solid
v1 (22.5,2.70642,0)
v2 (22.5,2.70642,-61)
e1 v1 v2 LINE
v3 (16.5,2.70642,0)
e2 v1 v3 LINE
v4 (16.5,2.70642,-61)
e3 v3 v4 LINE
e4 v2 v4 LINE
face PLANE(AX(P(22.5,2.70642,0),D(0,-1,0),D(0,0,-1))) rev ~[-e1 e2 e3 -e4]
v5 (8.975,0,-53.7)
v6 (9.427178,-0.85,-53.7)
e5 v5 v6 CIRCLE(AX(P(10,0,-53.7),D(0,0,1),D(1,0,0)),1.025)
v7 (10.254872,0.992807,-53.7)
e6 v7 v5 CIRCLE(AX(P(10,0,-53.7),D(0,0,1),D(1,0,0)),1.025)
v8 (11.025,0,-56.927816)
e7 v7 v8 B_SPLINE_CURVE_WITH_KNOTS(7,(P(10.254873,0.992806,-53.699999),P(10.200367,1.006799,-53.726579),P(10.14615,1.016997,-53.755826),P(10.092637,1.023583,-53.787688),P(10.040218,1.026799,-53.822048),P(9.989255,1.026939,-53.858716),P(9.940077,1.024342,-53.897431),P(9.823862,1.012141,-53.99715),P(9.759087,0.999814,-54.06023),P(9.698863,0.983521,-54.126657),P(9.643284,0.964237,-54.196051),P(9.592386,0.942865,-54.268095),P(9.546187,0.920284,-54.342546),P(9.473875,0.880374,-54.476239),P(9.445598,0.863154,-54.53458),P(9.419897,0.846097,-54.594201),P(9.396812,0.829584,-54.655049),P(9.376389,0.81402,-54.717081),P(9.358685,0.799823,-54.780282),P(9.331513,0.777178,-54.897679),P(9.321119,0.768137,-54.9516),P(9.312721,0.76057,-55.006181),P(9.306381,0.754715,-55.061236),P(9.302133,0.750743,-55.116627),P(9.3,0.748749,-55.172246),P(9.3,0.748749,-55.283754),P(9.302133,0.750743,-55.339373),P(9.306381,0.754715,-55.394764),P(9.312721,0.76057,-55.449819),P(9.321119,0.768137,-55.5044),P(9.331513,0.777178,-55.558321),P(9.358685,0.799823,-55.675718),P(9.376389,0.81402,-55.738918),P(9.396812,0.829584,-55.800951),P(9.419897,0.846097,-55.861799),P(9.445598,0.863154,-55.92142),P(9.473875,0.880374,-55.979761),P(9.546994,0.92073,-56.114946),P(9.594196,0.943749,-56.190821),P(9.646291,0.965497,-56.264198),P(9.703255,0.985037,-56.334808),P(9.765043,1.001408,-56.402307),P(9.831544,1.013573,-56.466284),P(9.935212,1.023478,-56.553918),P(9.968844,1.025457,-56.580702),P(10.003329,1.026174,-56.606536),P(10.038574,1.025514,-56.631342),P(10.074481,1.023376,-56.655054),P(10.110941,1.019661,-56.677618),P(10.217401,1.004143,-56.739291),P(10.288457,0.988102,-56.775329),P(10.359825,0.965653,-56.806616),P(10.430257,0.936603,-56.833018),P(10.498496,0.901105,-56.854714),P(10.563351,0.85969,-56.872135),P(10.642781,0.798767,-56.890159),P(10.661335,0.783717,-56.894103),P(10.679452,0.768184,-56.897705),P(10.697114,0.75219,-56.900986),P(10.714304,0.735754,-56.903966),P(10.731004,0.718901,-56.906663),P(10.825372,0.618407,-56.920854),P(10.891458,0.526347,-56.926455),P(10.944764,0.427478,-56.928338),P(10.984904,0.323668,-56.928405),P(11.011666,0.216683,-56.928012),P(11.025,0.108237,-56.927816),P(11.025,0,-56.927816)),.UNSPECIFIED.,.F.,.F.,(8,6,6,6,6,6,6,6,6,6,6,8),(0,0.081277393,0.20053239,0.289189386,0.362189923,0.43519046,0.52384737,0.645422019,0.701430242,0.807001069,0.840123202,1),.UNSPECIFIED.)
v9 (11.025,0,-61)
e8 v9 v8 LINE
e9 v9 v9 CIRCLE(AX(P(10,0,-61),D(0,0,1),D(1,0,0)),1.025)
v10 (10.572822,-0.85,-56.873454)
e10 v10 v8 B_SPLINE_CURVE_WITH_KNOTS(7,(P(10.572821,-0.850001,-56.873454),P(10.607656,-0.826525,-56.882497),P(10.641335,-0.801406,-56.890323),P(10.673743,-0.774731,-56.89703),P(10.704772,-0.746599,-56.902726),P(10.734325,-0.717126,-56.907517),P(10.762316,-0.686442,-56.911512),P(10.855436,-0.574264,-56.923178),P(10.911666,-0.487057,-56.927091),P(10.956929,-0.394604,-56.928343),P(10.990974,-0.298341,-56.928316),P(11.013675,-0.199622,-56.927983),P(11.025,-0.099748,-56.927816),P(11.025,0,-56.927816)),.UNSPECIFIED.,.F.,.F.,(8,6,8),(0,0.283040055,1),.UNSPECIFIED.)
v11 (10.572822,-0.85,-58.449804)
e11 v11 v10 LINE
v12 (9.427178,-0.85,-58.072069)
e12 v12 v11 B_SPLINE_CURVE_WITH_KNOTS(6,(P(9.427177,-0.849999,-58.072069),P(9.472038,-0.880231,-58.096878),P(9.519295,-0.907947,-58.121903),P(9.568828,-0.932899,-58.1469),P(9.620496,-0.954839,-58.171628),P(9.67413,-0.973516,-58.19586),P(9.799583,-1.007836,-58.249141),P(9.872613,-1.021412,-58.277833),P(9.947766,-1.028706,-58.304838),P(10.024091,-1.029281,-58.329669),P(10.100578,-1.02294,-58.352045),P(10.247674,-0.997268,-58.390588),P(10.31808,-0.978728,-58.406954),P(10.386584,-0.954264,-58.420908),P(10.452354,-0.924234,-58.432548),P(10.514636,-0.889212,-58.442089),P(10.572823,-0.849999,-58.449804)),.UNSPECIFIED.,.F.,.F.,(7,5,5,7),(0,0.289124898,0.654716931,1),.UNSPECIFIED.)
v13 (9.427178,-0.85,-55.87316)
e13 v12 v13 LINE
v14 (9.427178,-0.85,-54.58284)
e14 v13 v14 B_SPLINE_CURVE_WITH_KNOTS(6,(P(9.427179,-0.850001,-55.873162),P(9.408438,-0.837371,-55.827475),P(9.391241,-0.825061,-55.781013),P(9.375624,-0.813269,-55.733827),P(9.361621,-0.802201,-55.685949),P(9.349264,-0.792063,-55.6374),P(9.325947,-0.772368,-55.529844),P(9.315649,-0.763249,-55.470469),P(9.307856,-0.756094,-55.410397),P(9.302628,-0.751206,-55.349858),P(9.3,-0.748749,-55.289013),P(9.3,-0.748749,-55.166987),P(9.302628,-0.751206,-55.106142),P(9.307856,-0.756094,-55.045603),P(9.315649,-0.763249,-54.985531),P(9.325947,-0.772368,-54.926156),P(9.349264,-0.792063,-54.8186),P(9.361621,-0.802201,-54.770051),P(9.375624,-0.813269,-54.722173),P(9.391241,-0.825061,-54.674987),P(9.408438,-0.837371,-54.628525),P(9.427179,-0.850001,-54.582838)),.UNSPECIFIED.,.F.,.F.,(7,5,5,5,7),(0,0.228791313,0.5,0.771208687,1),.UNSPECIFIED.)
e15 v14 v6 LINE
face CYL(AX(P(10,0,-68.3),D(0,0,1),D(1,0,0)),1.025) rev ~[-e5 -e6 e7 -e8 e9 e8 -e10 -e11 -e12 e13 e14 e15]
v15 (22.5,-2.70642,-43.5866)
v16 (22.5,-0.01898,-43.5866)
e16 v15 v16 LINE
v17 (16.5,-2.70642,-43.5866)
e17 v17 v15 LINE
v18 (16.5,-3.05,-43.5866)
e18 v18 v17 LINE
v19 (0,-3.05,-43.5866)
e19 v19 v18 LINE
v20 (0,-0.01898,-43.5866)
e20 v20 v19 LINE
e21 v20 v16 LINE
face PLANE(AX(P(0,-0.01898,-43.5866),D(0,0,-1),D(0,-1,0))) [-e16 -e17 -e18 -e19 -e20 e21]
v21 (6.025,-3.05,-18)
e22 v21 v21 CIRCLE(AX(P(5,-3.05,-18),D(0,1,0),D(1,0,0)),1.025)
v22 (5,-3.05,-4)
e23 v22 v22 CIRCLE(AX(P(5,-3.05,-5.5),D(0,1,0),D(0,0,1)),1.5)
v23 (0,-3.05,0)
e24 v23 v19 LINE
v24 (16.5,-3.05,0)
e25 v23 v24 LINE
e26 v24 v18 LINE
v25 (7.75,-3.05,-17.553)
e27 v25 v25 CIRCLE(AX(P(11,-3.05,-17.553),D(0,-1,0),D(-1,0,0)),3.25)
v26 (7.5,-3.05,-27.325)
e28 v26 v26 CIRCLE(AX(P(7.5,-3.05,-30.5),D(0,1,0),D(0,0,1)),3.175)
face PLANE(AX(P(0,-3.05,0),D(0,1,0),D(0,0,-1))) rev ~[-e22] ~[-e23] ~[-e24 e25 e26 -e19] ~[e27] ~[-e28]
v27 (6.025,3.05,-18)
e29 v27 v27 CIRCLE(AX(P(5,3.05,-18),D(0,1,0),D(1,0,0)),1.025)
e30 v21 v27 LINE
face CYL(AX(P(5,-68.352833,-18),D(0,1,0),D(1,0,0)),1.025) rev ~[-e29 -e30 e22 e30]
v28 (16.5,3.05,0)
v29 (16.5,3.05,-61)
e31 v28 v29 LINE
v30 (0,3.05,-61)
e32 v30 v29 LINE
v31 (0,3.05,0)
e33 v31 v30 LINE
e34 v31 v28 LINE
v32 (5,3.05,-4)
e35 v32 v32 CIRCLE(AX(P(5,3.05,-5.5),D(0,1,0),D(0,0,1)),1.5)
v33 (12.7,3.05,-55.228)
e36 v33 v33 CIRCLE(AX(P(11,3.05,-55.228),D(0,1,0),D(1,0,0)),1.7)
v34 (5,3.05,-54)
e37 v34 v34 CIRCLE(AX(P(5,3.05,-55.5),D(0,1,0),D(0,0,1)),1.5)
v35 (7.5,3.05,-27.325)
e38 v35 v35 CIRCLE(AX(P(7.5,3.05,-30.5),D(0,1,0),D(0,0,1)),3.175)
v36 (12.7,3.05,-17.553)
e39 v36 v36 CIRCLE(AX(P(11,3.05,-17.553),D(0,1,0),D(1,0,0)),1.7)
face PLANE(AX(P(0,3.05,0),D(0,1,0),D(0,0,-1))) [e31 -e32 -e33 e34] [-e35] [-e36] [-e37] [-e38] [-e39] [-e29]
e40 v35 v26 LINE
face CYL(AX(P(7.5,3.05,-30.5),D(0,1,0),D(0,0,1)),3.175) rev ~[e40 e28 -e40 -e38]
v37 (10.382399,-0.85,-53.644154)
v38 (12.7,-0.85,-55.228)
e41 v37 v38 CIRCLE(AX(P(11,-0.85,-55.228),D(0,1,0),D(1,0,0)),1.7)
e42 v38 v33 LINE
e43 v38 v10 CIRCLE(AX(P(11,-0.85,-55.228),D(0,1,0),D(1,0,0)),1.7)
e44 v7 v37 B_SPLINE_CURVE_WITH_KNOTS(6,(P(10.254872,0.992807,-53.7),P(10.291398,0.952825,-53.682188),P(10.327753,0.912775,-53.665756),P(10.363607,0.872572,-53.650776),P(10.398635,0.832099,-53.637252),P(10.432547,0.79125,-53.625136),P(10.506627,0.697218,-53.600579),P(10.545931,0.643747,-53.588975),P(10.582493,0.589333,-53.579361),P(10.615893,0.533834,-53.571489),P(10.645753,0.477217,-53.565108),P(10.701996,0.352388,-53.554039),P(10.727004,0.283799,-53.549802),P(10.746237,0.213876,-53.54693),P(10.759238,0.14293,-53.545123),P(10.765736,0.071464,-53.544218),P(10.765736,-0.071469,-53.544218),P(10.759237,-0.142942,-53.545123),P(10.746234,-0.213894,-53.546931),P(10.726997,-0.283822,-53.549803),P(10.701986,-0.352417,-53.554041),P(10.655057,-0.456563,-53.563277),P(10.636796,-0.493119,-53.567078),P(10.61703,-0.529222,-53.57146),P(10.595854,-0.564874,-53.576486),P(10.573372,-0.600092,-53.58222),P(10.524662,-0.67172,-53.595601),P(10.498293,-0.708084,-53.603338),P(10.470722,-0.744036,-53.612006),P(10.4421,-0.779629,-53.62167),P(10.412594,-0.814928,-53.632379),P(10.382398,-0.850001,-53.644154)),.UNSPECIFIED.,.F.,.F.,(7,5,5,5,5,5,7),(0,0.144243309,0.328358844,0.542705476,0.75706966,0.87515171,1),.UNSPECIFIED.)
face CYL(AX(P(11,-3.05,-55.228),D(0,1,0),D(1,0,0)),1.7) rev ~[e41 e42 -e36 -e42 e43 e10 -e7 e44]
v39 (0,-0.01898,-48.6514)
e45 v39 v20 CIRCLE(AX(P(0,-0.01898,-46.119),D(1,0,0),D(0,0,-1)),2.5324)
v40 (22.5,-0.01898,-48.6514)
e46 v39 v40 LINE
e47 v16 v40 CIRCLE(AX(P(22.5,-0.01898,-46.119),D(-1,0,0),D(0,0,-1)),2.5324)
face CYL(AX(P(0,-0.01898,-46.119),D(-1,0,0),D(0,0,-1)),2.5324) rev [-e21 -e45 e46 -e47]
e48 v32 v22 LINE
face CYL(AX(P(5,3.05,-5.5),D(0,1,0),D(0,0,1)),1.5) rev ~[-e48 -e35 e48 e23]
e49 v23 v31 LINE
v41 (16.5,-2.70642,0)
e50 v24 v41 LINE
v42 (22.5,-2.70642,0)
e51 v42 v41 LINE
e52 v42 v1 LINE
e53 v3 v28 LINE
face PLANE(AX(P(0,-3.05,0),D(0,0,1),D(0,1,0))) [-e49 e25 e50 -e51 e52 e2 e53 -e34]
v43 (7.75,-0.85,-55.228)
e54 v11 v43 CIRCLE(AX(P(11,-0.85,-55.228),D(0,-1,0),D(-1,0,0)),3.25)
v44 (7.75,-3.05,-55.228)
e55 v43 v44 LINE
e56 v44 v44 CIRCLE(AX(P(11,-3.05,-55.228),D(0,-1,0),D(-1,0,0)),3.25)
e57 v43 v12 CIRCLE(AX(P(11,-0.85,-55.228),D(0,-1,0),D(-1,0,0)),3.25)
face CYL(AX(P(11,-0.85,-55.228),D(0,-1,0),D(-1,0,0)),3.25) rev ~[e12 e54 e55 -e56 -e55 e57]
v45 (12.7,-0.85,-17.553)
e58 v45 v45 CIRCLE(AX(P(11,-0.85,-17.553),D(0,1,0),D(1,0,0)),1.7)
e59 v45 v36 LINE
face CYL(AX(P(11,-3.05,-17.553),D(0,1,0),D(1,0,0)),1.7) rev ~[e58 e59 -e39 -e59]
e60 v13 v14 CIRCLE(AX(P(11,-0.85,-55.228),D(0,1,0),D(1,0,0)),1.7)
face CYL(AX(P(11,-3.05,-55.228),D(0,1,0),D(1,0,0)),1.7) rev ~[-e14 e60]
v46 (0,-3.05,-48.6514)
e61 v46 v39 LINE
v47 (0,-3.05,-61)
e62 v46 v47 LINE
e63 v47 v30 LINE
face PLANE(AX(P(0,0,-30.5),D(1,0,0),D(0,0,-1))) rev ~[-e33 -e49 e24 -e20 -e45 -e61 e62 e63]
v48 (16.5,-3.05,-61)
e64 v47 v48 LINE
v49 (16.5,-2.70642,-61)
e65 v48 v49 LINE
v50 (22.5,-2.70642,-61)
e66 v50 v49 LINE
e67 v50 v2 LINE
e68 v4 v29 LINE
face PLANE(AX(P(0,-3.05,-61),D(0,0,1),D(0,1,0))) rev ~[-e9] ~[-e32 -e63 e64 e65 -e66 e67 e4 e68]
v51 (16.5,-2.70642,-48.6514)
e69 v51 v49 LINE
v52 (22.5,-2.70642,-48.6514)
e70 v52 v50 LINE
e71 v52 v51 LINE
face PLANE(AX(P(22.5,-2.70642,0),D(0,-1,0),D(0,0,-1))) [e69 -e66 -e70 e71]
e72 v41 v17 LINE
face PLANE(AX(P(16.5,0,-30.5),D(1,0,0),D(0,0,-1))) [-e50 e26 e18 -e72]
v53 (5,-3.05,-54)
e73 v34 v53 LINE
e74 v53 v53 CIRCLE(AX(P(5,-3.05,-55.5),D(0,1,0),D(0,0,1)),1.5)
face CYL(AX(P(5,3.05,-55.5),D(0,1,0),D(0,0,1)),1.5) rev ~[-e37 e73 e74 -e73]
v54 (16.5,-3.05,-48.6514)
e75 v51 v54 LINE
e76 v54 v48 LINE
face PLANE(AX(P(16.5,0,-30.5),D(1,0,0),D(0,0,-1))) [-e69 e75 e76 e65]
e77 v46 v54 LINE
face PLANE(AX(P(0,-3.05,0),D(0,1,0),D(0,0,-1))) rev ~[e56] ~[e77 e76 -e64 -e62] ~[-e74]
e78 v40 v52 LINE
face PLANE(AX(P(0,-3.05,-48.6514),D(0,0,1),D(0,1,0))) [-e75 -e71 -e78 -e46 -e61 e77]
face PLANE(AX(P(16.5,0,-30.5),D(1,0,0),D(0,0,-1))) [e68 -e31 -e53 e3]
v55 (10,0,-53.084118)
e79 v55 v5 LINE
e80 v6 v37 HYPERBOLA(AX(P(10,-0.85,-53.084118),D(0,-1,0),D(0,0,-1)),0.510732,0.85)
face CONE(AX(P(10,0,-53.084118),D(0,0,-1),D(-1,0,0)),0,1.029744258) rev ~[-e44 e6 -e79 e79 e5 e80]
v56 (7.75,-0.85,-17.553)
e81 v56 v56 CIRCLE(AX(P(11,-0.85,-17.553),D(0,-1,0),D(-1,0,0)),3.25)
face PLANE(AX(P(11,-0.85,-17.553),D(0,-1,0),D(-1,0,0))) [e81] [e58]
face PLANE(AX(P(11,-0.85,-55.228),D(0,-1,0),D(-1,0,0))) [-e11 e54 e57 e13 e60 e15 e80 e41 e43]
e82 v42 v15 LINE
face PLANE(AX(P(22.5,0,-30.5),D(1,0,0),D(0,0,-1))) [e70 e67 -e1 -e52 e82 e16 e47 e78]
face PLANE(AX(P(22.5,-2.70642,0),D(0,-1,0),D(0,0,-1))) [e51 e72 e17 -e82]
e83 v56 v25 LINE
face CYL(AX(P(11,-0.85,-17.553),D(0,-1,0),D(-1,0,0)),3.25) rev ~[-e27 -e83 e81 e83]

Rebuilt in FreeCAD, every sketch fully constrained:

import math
import FreeCAD as App
import Part
import Sketcher

V = App.Vector
Q = App.Units.Quantity

doc = App.newDocument("Part")
body = doc.addObject("PartDesign::Body", "Body")

# Sketch on YZ plane
sketch1 = body.newObject("Sketcher::SketchObject", "Sketch")
sketch1.AttachmentSupport = (doc.getObject("YZ_Plane"), [""])
sketch1.MapMode = "FlatFace"
sketch1.addGeometry(Part.LineSegment(V(3.05, 0, 0), V(-3.05, 0, 0)), False)
sketch1.addGeometry(Part.LineSegment(V(-3.05, 0, 0), V(-3.05, -61, 0)), False)
sketch1.addGeometry(Part.LineSegment(V(-3.05, -61, 0), V(3.05, -61, 0)), False)
sketch1.addGeometry(Part.LineSegment(V(3.05, -61, 0), V(3.05, 0, 0)), False)
sketch1.addConstraint(Sketcher.Constraint("Coincident", 0, 2, 1, 1))
sketch1.addConstraint(Sketcher.Constraint("Coincident", 1, 2, 2, 1))
sketch1.addConstraint(Sketcher.Constraint("Coincident", 2, 2, 3, 1))
sketch1.addConstraint(Sketcher.Constraint("Coincident", 3, 2, 0, 1))
sketch1.addConstraint(Sketcher.Constraint("Horizontal", 0))
sketch1.addConstraint(Sketcher.Constraint("Vertical", 1))
sketch1.addConstraint(Sketcher.Constraint("Horizontal", 2))
sketch1.addConstraint(Sketcher.Constraint("Vertical", 3))
sketch1.addConstraint(Sketcher.Constraint("Symmetric", 0, 2, 3, 2, -1, 1))
sketch1.addConstraint(Sketcher.Constraint("DistanceY", 1, 2, 1, 1, Q("61 mm")))
sketch1.addConstraint(Sketcher.Constraint("DistanceX", 0, 2, 0, 1, Q("6.1 mm")))
pad1 = body.newObject("PartDesign::Pad", "Pad")
pad1.Profile = sketch1
pad1.Length = 22.5

# Sketch on YZ plane
sketch2 = body.newObject("Sketcher::SketchObject", "Sketch001")
sketch2.AttachmentSupport = (doc.getObject("YZ_Plane"), [""])
sketch2.MapMode = "FlatFace"
sketch2.AttachmentOffset = App.Placement(V(0, 0, 22.5), App.Rotation())
sketch2.addGeometry(Part.LineSegment(V(10.58, 7.53, 0), V(-10.58, 7.53, 0)), False)
sketch2.addGeometry(Part.LineSegment(V(-10.58, 7.53, 0), V(-10.58, -68.53, 0)), False)
sketch2.addGeometry(Part.LineSegment(V(-10.58, -68.53, 0), V(10.58, -68.53, 0)), False)
sketch2.addGeometry(Part.LineSegment(V(10.58, -68.53, 0), V(10.58, 7.53, 0)), False)
sketch2.addGeometry(Part.LineSegment(V(-2.70642, -61, 0), V(-2.70642, 0, 0)), False)
sketch2.addGeometry(Part.LineSegment(V(-2.70642, 0, 0), V(2.70642, 0, 0)), False)
sketch2.addGeometry(Part.LineSegment(V(2.70642, 0, 0), V(2.70642, -61, 0)), False)
sketch2.addGeometry(Part.LineSegment(V(2.70642, -61, 0), V(-2.70642, -61, 0)), False)
sketch2.addConstraint(Sketcher.Constraint("Coincident", 0, 2, 1, 1))
sketch2.addConstraint(Sketcher.Constraint("Coincident", 1, 2, 2, 1))
sketch2.addConstraint(Sketcher.Constraint("Coincident", 2, 2, 3, 1))
sketch2.addConstraint(Sketcher.Constraint("Coincident", 3, 2, 0, 1))
sketch2.addConstraint(Sketcher.Constraint("Coincident", 4, 2, 5, 1))
sketch2.addConstraint(Sketcher.Constraint("Coincident", 5, 2, 6, 1))
sketch2.addConstraint(Sketcher.Constraint("Coincident", 6, 2, 7, 1))
sketch2.addConstraint(Sketcher.Constraint("Coincident", 7, 2, 4, 1))
sketch2.addConstraint(Sketcher.Constraint("Horizontal", 0))
sketch2.addConstraint(Sketcher.Constraint("Vertical", 1))
sketch2.addConstraint(Sketcher.Constraint("Horizontal", 2))
sketch2.addConstraint(Sketcher.Constraint("Vertical", 3))
sketch2.addConstraint(Sketcher.Constraint("Vertical", 4))
sketch2.addConstraint(Sketcher.Constraint("Horizontal", 5))
sketch2.addConstraint(Sketcher.Constraint("Vertical", 6))
sketch2.addConstraint(Sketcher.Constraint("Horizontal", 7))
sketch2.addConstraint(Sketcher.Constraint("Symmetric", 4, 2, 5, 2, -1, 1))
sketch2.addConstraint(Sketcher.Constraint("DistanceY", 4, 1, 4, 2, Q("61 mm")))
sketch2.addConstraint(Sketcher.Constraint("DistanceX", 0, 2, 0, 1, Q("21.16 mm")))
sketch2.addConstraint(Sketcher.Constraint("DistanceY", 1, 2, 1, 1, Q("76.06 mm")))
sketch2.addConstraint(Sketcher.Constraint("DistanceX", 0, 2, -1, 1, Q("10.58 mm")))
sketch2.addConstraint(Sketcher.Constraint("DistanceY", -1, 1, 0, 2, Q("7.53 mm")))
sketch2.addConstraint(Sketcher.Constraint("DistanceX", 5, 1, 5, 2, Q("5.41284 mm")))
pocket1 = body.newObject("PartDesign::Pocket", "Pocket")
pocket1.Profile = sketch2
pocket1.Length = 6

# Sketch on YZ plane
sketch3 = body.newObject("Sketcher::SketchObject", "Sketch002")
sketch3.AttachmentSupport = (doc.getObject("YZ_Plane"), [""])
sketch3.MapMode = "FlatFace"
sketch3.addGeometry(Part.LineSegment(V(-3.05, -43.5866, 0), V(-0.01898, -43.5866, 0)), False)
sketch3.addGeometry(Part.ArcOfCircle(Part.Circle(V(-0.01898, -46.119, 0), V(0, 0, 1), 2.5324), math.radians(-90), math.radians(90)), False)
sketch3.addGeometry(Part.LineSegment(V(-0.01898, -48.6514, 0), V(-3.05, -48.6514, 0)), False)
sketch3.addGeometry(Part.LineSegment(V(-3.05, -48.6514, 0), V(-3.05, -43.5866, 0)), False)
sketch3.addConstraint(Sketcher.Constraint("Tangent", 0, 2, 1, 2))
sketch3.addConstraint(Sketcher.Constraint("Tangent", 1, 1, 2, 1))
sketch3.addConstraint(Sketcher.Constraint("Coincident", 2, 2, 3, 1))
sketch3.addConstraint(Sketcher.Constraint("Coincident", 3, 2, 0, 1))
sketch3.addConstraint(Sketcher.Constraint("Horizontal", 0))
sketch3.addConstraint(Sketcher.Constraint("Horizontal", 2))
sketch3.addConstraint(Sketcher.Constraint("Vertical", 3))
sketch3.addConstraint(Sketcher.Constraint("Radius", 1, Q("2.5324 mm")))
sketch3.addConstraint(Sketcher.Constraint("DistanceX", 2, 2, -1, 1, Q("3.05 mm")))
sketch3.addConstraint(Sketcher.Constraint("DistanceY", 1, 3, -1, 1, Q("46.119 mm")))
sketch3.addConstraint(Sketcher.Constraint("DistanceX", 0, 1, 0, 2, Q("3.03102 mm")))
pocket2 = body.newObject("PartDesign::Pocket", "Pocket001")
pocket2.Profile = sketch3
pocket2.Type = "ThroughAll"
pocket2.Reversed = True

# Sketch on XZ plane
sketch4 = body.newObject("Sketcher::SketchObject", "Sketch003")
sketch4.AttachmentSupport = (doc.getObject("XZ_Plane"), [""])
sketch4.MapMode = "FlatFace"
sketch4.AttachmentOffset = App.Placement(V(0, 0, -3.05), App.Rotation())
sketch4.addGeometry(Part.Circle(V(7.5, -30.5, 0), V(0, 0, 1), 3.175), False)
sketch4.addConstraint(Sketcher.Constraint("Diameter", 0, Q("6.35 mm")))
sketch4.addConstraint(Sketcher.Constraint("DistanceX", -1, 1, 0, 3, Q("7.5 mm")))
sketch4.addConstraint(Sketcher.Constraint("DistanceY", 0, 3, -1, 1, Q("30.5 mm")))
pocket3 = body.newObject("PartDesign::Pocket", "Pocket002")
pocket3.Profile = sketch4
pocket3.Type = "ThroughAll"
pocket3.Reversed = True

# Sketch on XZ plane
sketch5 = body.newObject("Sketcher::SketchObject", "Sketch004")
sketch5.AttachmentSupport = (doc.getObject("XZ_Plane"), [""])
sketch5.MapMode = "FlatFace"
sketch5.AttachmentOffset = App.Placement(V(0, 0, -3.05), App.Rotation())
sketch5.addGeometry(Part.Circle(V(5, -55.5, 0), V(0, 0, 1), 1.5), False)
sketch5.addGeometry(Part.Circle(V(5, -5.5, 0), V(0, 0, 1), 1.5), False)
sketch5.addConstraint(Sketcher.Constraint("Equal", 0, 1))
sketch5.addConstraint(Sketcher.Constraint("Vertical", 0, 3, 1, 3))
sketch5.addConstraint(Sketcher.Constraint("Diameter", 0, Q("3 mm")))
sketch5.addConstraint(Sketcher.Constraint("DistanceX", -1, 1, 0, 3, Q("5 mm")))
sketch5.addConstraint(Sketcher.Constraint("DistanceY", 0, 3, 1, 3, Q("50 mm")))
sketch5.addConstraint(Sketcher.Constraint("DistanceY", 0, 3, -1, 1, Q("55.5 mm")))
pocket4 = body.newObject("PartDesign::Pocket", "Pocket003")
pocket4.Profile = sketch5
pocket4.Type = "ThroughAll"
pocket4.Reversed = True

# Sketch on XZ plane
sketch6 = body.newObject("Sketcher::SketchObject", "Sketch005")
sketch6.AttachmentSupport = (doc.getObject("XZ_Plane"), [""])
sketch6.MapMode = "FlatFace"
sketch6.AttachmentOffset = App.Placement(V(0, 0, 3.05), App.Rotation())
sketch6.addGeometry(Part.Circle(V(5, -18, 0), V(0, 0, 1), 1.025), False)
sketch6.addConstraint(Sketcher.Constraint("Diameter", 0, Q("2.05 mm")))
sketch6.addConstraint(Sketcher.Constraint("DistanceX", -1, 1, 0, 3, Q("5 mm")))
sketch6.addConstraint(Sketcher.Constraint("DistanceY", 0, 3, -1, 1, Q("18 mm")))
doc.recompute()
hole = body.newObject("PartDesign::Hole", "Hole")
hole.Profile = sketch6
hole.ThreadType = "None"
hole.Diameter = 2.05
hole.DepthType = "ThroughAll"

# Sketch on XY plane
sketch7 = body.newObject("Sketcher::SketchObject", "Sketch006")
sketch7.AttachmentSupport = (doc.getObject("XY_Plane"), [""])
sketch7.MapMode = "FlatFace"
sketch7.AttachmentOffset = App.Placement(V(0, 0, -61), App.Rotation())
sketch7.addGeometry(Part.Circle(V(10, 0, 0), V(0, 0, 1), 1.025), False)
sketch7.addConstraint(Sketcher.Constraint("PointOnObject", 0, 3, -1))
sketch7.addConstraint(Sketcher.Constraint("Diameter", 0, Q("2.05 mm")))
sketch7.addConstraint(Sketcher.Constraint("DistanceX", -1, 1, 0, 3, Q("10 mm")))
doc.recompute()
hole2 = body.newObject("PartDesign::Hole", "Hole001")
hole2.Profile = sketch7
hole2.ThreadType = "None"
hole2.Diameter = 2.05
hole2.DepthType = "Dimension"
hole2.Depth = 7.3
hole2.DrillPoint = "Angled"
hole2.DrillPointAngle = 118
hole2.Reversed = True

# Sketch on XZ plane
sketch8 = body.newObject("Sketcher::SketchObject", "Sketch007")
sketch8.AttachmentSupport = (doc.getObject("XZ_Plane"), [""])
sketch8.MapMode = "FlatFace"
sketch8.AttachmentOffset = App.Placement(V(0, 0, 3.05), App.Rotation())
sketch8.addGeometry(Part.Circle(V(11, -55.228, 0), V(0, 0, 1), 1.7), False)
sketch8.addGeometry(Part.Circle(V(11, -17.553, 0), V(0, 0, 1), 1.7), False)
sketch8.addConstraint(Sketcher.Constraint("Equal", 0, 1))
sketch8.addConstraint(Sketcher.Constraint("Vertical", 0, 3, 1, 3))
sketch8.addConstraint(Sketcher.Constraint("Diameter", 0, Q("3.4 mm")))
sketch8.addConstraint(Sketcher.Constraint("DistanceX", -1, 1, 0, 3, Q("11 mm")))
sketch8.addConstraint(Sketcher.Constraint("DistanceY", 0, 3, -1, 1, Q("55.228 mm")))
sketch8.addConstraint(Sketcher.Constraint("DistanceY", 1, 3, -1, 1, Q("17.553 mm")))
doc.recompute()
hole3 = body.newObject("PartDesign::Hole", "Hole002")
hole3.Profile = sketch8
hole3.ThreadType = "None"
hole3.Diameter = 3.4
hole3.DepthType = "ThroughAll"
hole3.HoleCutType = "Counterbore"
hole3.HoleCutDiameter = 6.5
hole3.HoleCutDepth = 2.2

doc.recompute()
